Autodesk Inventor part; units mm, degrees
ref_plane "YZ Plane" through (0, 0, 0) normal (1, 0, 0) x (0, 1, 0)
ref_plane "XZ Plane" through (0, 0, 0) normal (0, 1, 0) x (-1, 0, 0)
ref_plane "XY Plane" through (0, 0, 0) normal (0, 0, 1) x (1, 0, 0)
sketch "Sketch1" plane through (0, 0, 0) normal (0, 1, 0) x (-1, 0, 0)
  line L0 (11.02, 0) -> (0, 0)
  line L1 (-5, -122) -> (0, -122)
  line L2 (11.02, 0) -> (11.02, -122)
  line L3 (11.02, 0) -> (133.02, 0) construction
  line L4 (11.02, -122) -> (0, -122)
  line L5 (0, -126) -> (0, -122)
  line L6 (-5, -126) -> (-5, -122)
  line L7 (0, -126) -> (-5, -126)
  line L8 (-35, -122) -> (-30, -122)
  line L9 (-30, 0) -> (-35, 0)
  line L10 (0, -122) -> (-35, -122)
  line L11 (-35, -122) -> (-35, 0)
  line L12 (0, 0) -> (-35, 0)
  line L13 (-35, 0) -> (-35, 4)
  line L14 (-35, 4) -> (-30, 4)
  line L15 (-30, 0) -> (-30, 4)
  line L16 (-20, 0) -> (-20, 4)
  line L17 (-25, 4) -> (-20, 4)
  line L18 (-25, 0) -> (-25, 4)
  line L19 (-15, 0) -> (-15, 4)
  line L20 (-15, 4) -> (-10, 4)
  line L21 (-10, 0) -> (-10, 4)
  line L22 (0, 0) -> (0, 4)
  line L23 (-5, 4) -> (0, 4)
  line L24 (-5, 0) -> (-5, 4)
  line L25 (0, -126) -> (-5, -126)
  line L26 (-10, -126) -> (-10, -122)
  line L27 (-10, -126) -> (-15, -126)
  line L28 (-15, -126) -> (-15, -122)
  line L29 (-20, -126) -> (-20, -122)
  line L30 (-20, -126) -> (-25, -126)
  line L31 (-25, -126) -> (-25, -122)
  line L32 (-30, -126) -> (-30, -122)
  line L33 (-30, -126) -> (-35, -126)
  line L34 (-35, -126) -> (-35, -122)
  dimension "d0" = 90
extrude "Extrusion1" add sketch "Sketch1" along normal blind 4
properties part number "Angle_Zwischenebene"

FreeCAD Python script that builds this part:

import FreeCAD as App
import Part
import Sketcher

doc = App.newDocument("Part")
body = doc.addObject("PartDesign::Body", "Body")

# Sketch on XZ plane
sketch1 = doc.addObject("Sketcher::SketchObject", "Sketch")
body.addObject(sketch1)
sketch1.AttachmentSupport = (doc.XZ_Plane, [""])
sketch1.MapMode = "FlatFace"
sketch1.addGeometry([
    Part.LineSegment(App.Vector(-11.02, -122, 0), App.Vector(-11.02, 0, 0)),  # 0
    Part.LineSegment(App.Vector(-11.02, 0, 0), App.Vector(0, 0, 0)),  # 1
    Part.LineSegment(App.Vector(0, 0, 0), App.Vector(0, 4, 0)),  # 2
    Part.LineSegment(App.Vector(0, 4, 0), App.Vector(5, 4, 0)),  # 3
    Part.LineSegment(App.Vector(5, 4, 0), App.Vector(5, 0, 0)),  # 4
    Part.LineSegment(App.Vector(5, 0, 0), App.Vector(10, 0, 0)),  # 5
    Part.LineSegment(App.Vector(10, 0, 0), App.Vector(10, 4, 0)),  # 6
    Part.LineSegment(App.Vector(10, 4, 0), App.Vector(15, 4, 0)),  # 7
    Part.LineSegment(App.Vector(15, 4, 0), App.Vector(15, 0, 0)),  # 8
    Part.LineSegment(App.Vector(15, 0, 0), App.Vector(20, 0, 0)),  # 9
    Part.LineSegment(App.Vector(20, 0, 0), App.Vector(20, 4, 0)),  # 10
    Part.LineSegment(App.Vector(20, 4, 0), App.Vector(25, 4, 0)),  # 11
    Part.LineSegment(App.Vector(25, 4, 0), App.Vector(25, 0, 0)),  # 12
    Part.LineSegment(App.Vector(25, 0, 0), App.Vector(30, 0, 0)),  # 13
    Part.LineSegment(App.Vector(30, 0, 0), App.Vector(30, 4, 0)),  # 14
    Part.LineSegment(App.Vector(30, 4, 0), App.Vector(35, 4, 0)),  # 15
    Part.LineSegment(App.Vector(35, 4, 0), App.Vector(35, -126, 0)),  # 16
    Part.LineSegment(App.Vector(35, -126, 0), App.Vector(30, -126, 0)),  # 17
    Part.LineSegment(App.Vector(30, -126, 0), App.Vector(30, -122, 0)),  # 18
    Part.LineSegment(App.Vector(30, -122, 0), App.Vector(25, -122, 0)),  # 19
    Part.LineSegment(App.Vector(25, -122, 0), App.Vector(25, -126, 0)),  # 20
    Part.LineSegment(App.Vector(25, -126, 0), App.Vector(20, -126, 0)),  # 21
    Part.LineSegment(App.Vector(20, -126, 0), App.Vector(20, -122, 0)),  # 22
    Part.LineSegment(App.Vector(20, -122, 0), App.Vector(15, -122, 0)),  # 23
    Part.LineSegment(App.Vector(15, -122, 0), App.Vector(15, -126, 0)),  # 24
    Part.LineSegment(App.Vector(15, -126, 0), App.Vector(10, -126, 0)),  # 25
    Part.LineSegment(App.Vector(10, -126, 0), App.Vector(10, -122, 0)),  # 26
    Part.LineSegment(App.Vector(10, -122, 0), App.Vector(5, -122, 0)),  # 27
    Part.LineSegment(App.Vector(5, -122, 0), App.Vector(5, -126, 0)),  # 28
    Part.LineSegment(App.Vector(5, -126, 0), App.Vector(0, -126, 0)),  # 29
    Part.LineSegment(App.Vector(0, -126, 0), App.Vector(0, -122, 0)),  # 30
    Part.LineSegment(App.Vector(0, -122, 0), App.Vector(-11.02, -122, 0)),  # 31
], False)
sketch1.addConstraint([
    Sketcher.Constraint("Coincident", 0, 2, 1, 1),
    Sketcher.Constraint("Coincident", 1, 2, 2, 1),
    Sketcher.Constraint("Coincident", 2, 2, 3, 1),
    Sketcher.Constraint("Coincident", 3, 2, 4, 1),
    Sketcher.Constraint("Coincident", 4, 2, 5, 1),
    Sketcher.Constraint("Coincident", 5, 2, 6, 1),
    Sketcher.Constraint("Coincident", 6, 2, 7, 1),
    Sketcher.Constraint("Coincident", 7, 2, 8, 1),
    Sketcher.Constraint("Coincident", 8, 2, 9, 1),
    Sketcher.Constraint("Coincident", 9, 2, 10, 1),
    Sketcher.Constraint("Coincident", 10, 2, 11, 1),
    Sketcher.Constraint("Coincident", 11, 2, 12, 1),
    Sketcher.Constraint("Coincident", 12, 2, 13, 1),
    Sketcher.Constraint("Coincident", 13, 2, 14, 1),
    Sketcher.Constraint("Coincident", 14, 2, 15, 1),
    Sketcher.Constraint("Coincident", 15, 2, 16, 1),
    Sketcher.Constraint("Coincident", 16, 2, 17, 1),
    Sketcher.Constraint("Coincident", 17, 2, 18, 1),
    Sketcher.Constraint("Coincident", 18, 2, 19, 1),
    Sketcher.Constraint("Coincident", 19, 2, 20, 1),
    Sketcher.Constraint("Coincident", 20, 2, 21, 1),
    Sketcher.Constraint("Coincident", 21, 2, 22, 1),
    Sketcher.Constraint("Coincident", 22, 2, 23, 1),
    Sketcher.Constraint("Coincident", 23, 2, 24, 1),
    Sketcher.Constraint("Coincident", 24, 2, 25, 1),
    Sketcher.Constraint("Coincident", 25, 2, 26, 1),
    Sketcher.Constraint("Coincident", 26, 2, 27, 1),
    Sketcher.Constraint("Coincident", 27, 2, 28, 1),
    Sketcher.Constraint("Coincident", 28, 2, 29, 1),
    Sketcher.Constraint("Coincident", 29, 2, 30, 1),
    Sketcher.Constraint("Coincident", 30, 2, 31, 1),
    Sketcher.Constraint("Coincident", 31, 2, 0, 1),
    Sketcher.Constraint("Vertical", 0),
    Sketcher.Constraint("Horizontal", 1),
    Sketcher.Constraint("Vertical", 2),
    Sketcher.Constraint("Horizontal", 3),
    Sketcher.Constraint("Vertical", 4),
    Sketcher.Constraint("Horizontal", 5),
    Sketcher.Constraint("Vertical", 6),
    Sketcher.Constraint("Horizontal", 7),
    Sketcher.Constraint("Vertical", 8),
    Sketcher.Constraint("Horizontal", 9),
    Sketcher.Constraint("Vertical", 10),
    Sketcher.Constraint("Horizontal", 11),
    Sketcher.Constraint("Vertical", 12),
    Sketcher.Constraint("Horizontal", 13),
    Sketcher.Constraint("Vertical", 14),
    Sketcher.Constraint("Horizontal", 15),
    Sketcher.Constraint("Vertical", 16),
    Sketcher.Constraint("Horizontal", 17),
    Sketcher.Constraint("Vertical", 18),
    Sketcher.Constraint("Horizontal", 19),
    Sketcher.Constraint("Vertical", 20),
    Sketcher.Constraint("Horizontal", 21),
    Sketcher.Constraint("Vertical", 22),
    Sketcher.Constraint("Horizontal", 23),
    Sketcher.Constraint("Vertical", 24),
    Sketcher.Constraint("Horizontal", 25),
    Sketcher.Constraint("Vertical", 26),
    Sketcher.Constraint("Horizontal", 27),
    Sketcher.Constraint("Vertical", 28),
    Sketcher.Constraint("Horizontal", 29),
    Sketcher.Constraint("Vertical", 30),
    Sketcher.Constraint("Horizontal", 31),
    Sketcher.Constraint("Coincident", 1, 2, -1, 1),
    Sketcher.Constraint("PointOnObject", 4, 2, -1),
    Sketcher.Constraint("PointOnObject", 8, 2, -1),
    Sketcher.Constraint("PointOnObject", 12, 2, -1),
    Sketcher.Constraint("PointOnObject", 29, 2, -2),
    Sketcher.Constraint("Horizontal", 3, 2, 6, 2),
    Sketcher.Constraint("Horizontal", 7, 2, 10, 2),
    Sketcher.Constraint("Horizontal", 11, 2, 14, 2),
    Sketcher.Constraint("Horizontal", 17, 2, 20, 2),
    Sketcher.Constraint("Horizontal", 19, 2, 22, 2),
    Sketcher.Constraint("Horizontal", 21, 2, 24, 2),
    Sketcher.Constraint("Horizontal", 23, 2, 26, 2),
    Sketcher.Constraint("Horizontal", 25, 2, 28, 2),
    Sketcher.Constraint("Horizontal", 27, 2, 30, 2),
    Sketcher.Constraint("Vertical", 14, 2, 17, 2),
    Sketcher.Constraint("Vertical", 12, 2, 19, 2),
    Sketcher.Constraint("Vertical", 10, 2, 21, 2),
    Sketcher.Constraint("Vertical", 8, 2, 23, 2),
    Sketcher.Constraint("Vertical", 6, 2, 25, 2),
    Sketcher.Constraint("Vertical", 4, 2, 27, 2),
    Sketcher.Constraint("Equal", 3, 5),
    Sketcher.Constraint("Equal", 5, 7),
    Sketcher.Constraint("Equal", 7, 9),
    Sketcher.Constraint("Equal", 9, 11),
    Sketcher.Constraint("Equal", 11, 13),
    Sketcher.Constraint("Equal", 13, 15),
    Sketcher.Constraint("Equal", 14, 18),
    Sketcher.Constraint("DistanceX", 3, 1, 3, 2, 5.0),
    Sketcher.Constraint("DistanceY", 0, 1, 0, 2, 122.0),
    Sketcher.Constraint("DistanceY", 2, 1, 2, 2, 4.0),
    Sketcher.Constraint("DistanceX", 1, 1, 1, 2, 11.02),
])
pad1 = doc.addObject("PartDesign::Pad", "Pad")
body.addObject(pad1)
pad1.Profile = sketch1
pad1.Length = 4
pad1.Reversed = True

doc.recompute()
